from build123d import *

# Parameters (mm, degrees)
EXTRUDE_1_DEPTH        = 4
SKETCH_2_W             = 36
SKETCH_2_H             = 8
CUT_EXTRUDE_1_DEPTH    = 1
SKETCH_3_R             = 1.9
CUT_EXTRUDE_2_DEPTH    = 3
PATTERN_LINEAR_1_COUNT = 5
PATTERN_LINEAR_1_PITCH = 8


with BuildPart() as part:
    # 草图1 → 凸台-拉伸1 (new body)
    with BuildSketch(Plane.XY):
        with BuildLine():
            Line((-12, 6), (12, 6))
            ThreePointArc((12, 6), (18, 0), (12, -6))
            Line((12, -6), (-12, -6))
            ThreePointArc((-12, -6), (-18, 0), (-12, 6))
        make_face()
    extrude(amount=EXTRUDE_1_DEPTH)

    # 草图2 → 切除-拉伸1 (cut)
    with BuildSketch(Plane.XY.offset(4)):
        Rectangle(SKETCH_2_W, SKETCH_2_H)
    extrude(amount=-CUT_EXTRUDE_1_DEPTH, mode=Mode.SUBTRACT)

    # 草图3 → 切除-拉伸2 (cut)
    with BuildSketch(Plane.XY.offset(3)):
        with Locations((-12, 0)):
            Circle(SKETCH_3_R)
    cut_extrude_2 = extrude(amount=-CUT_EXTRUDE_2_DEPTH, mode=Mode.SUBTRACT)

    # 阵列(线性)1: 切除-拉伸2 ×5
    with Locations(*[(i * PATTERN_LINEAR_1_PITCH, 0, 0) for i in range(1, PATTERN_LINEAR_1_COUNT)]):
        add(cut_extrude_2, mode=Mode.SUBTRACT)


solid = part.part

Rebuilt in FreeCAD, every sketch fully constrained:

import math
import FreeCAD as App
import Part
import Sketcher

V = App.Vector
Q = App.Units.Quantity

doc = App.newDocument("Part")
body = doc.addObject("PartDesign::Body", "Body")

sketch1 = body.newObject("Sketcher::SketchObject", "Sketch")
sketch1.AttachmentSupport = (doc.getObject("XY_Plane"), [""])
sketch1.MapMode = "FlatFace"
sketch1.addGeometry([
    Part.LineSegment(V(12, 6, 0), V(-12, 6, 0)),
    Part.ArcOfCircle(Part.Circle(V(-12, 0, 0), V(0, 0, 1), 6), math.radians(90), math.radians(270)),
    Part.LineSegment(V(-12, -6, 0), V(12, -6, 0)),
    Part.ArcOfCircle(Part.Circle(V(12, 0, 0), V(0, 0, 1), 6), math.radians(-90), math.radians(90)),
], False)
sketch1.addConstraint([
    Sketcher.Constraint("Tangent", 0, 2, 1, 1),
    Sketcher.Constraint("Tangent", 1, 2, 2, 1),
    Sketcher.Constraint("Tangent", 2, 2, 3, 1),
    Sketcher.Constraint("Tangent", 3, 2, 0, 1),
    Sketcher.Constraint("Horizontal", 0),
    Sketcher.Constraint("Horizontal", 2),
    Sketcher.Constraint("Symmetric", 1, 3, 3, 3, -1, 1),
    Sketcher.Constraint("Radius", 1, Q("6 mm")),
    Sketcher.Constraint("DistanceX", 0, 2, 0, 1, Q("24 mm")),
])
pad1 = body.newObject("PartDesign::Pad", "Pad")
pad1.Profile = sketch1
pad1.Length = 4

sketch2 = body.newObject("Sketcher::SketchObject", "Sketch001")
sketch2.AttachmentSupport = (doc.getObject("XY_Plane"), [""])
sketch2.MapMode = "FlatFace"
sketch2.AttachmentOffset = App.Placement(V(0, 0, 4), App.Rotation())
sketch2.addGeometry([
    Part.LineSegment(V(-18, 4, 0), V(-18, -4, 0)),
    Part.LineSegment(V(-18, -4, 0), V(18, -4, 0)),
    Part.LineSegment(V(18, -4, 0), V(18, 4, 0)),
    Part.LineSegment(V(18, 4, 0), V(-18, 4, 0)),
], False)
sketch2.addConstraint([
    Sketcher.Constraint("Coincident", 0, 2, 1, 1),
    Sketcher.Constraint("Coincident", 1, 2, 2, 1),
    Sketcher.Constraint("Coincident", 2, 2, 3, 1),
    Sketcher.Constraint("Coincident", 3, 2, 0, 1),
    Sketcher.Constraint("Vertical", 0),
    Sketcher.Constraint("Horizontal", 1),
    Sketcher.Constraint("Vertical", 2),
    Sketcher.Constraint("Horizontal", 3),
    Sketcher.Constraint("Symmetric", 0, 2, 2, 2, -1, 1),
    Sketcher.Constraint("DistanceX", 1, 1, 1, 2, Q("36 mm")),
    Sketcher.Constraint("DistanceY", 0, 2, 0, 1, Q("8 mm")),
])
pocket1 = body.newObject("PartDesign::Pocket", "Pocket")
pocket1.Profile = sketch2
pocket1.Length = 1

sketch3 = body.newObject("Sketcher::SketchObject", "Sketch002")
sketch3.AttachmentSupport = (doc.getObject("XY_Plane"), [""])
sketch3.MapMode = "FlatFace"
sketch3.AttachmentOffset = App.Placement(V(0, 0, 3), App.Rotation())
sketch3.addGeometry(Part.Circle(V(-12, 0, 0), V(0, 0, 1), 1.9), False)
sketch3.addConstraint([
    Sketcher.Constraint("PointOnObject", 0, 3, -1),
    Sketcher.Constraint("Diameter", 0, Q("3.8 mm")),
    Sketcher.Constraint("DistanceX", 0, 3, -1, 1, Q("12 mm")),
])
pocket2 = body.newObject("PartDesign::Pocket", "Pocket001")
pocket2.Profile = sketch3
pocket2.Length = 3
doc.recompute()

linearpattern = body.newObject("PartDesign::LinearPattern", "LinearPattern")
linearpattern.Originals = [pocket2]
linearpattern.Direction = (doc.getObject("X_Axis"), [""])
linearpattern.Mode = "offset"
linearpattern.Offset = 8
linearpattern.Occurrences = 5
body.Tip = linearpattern

doc.recompute()
